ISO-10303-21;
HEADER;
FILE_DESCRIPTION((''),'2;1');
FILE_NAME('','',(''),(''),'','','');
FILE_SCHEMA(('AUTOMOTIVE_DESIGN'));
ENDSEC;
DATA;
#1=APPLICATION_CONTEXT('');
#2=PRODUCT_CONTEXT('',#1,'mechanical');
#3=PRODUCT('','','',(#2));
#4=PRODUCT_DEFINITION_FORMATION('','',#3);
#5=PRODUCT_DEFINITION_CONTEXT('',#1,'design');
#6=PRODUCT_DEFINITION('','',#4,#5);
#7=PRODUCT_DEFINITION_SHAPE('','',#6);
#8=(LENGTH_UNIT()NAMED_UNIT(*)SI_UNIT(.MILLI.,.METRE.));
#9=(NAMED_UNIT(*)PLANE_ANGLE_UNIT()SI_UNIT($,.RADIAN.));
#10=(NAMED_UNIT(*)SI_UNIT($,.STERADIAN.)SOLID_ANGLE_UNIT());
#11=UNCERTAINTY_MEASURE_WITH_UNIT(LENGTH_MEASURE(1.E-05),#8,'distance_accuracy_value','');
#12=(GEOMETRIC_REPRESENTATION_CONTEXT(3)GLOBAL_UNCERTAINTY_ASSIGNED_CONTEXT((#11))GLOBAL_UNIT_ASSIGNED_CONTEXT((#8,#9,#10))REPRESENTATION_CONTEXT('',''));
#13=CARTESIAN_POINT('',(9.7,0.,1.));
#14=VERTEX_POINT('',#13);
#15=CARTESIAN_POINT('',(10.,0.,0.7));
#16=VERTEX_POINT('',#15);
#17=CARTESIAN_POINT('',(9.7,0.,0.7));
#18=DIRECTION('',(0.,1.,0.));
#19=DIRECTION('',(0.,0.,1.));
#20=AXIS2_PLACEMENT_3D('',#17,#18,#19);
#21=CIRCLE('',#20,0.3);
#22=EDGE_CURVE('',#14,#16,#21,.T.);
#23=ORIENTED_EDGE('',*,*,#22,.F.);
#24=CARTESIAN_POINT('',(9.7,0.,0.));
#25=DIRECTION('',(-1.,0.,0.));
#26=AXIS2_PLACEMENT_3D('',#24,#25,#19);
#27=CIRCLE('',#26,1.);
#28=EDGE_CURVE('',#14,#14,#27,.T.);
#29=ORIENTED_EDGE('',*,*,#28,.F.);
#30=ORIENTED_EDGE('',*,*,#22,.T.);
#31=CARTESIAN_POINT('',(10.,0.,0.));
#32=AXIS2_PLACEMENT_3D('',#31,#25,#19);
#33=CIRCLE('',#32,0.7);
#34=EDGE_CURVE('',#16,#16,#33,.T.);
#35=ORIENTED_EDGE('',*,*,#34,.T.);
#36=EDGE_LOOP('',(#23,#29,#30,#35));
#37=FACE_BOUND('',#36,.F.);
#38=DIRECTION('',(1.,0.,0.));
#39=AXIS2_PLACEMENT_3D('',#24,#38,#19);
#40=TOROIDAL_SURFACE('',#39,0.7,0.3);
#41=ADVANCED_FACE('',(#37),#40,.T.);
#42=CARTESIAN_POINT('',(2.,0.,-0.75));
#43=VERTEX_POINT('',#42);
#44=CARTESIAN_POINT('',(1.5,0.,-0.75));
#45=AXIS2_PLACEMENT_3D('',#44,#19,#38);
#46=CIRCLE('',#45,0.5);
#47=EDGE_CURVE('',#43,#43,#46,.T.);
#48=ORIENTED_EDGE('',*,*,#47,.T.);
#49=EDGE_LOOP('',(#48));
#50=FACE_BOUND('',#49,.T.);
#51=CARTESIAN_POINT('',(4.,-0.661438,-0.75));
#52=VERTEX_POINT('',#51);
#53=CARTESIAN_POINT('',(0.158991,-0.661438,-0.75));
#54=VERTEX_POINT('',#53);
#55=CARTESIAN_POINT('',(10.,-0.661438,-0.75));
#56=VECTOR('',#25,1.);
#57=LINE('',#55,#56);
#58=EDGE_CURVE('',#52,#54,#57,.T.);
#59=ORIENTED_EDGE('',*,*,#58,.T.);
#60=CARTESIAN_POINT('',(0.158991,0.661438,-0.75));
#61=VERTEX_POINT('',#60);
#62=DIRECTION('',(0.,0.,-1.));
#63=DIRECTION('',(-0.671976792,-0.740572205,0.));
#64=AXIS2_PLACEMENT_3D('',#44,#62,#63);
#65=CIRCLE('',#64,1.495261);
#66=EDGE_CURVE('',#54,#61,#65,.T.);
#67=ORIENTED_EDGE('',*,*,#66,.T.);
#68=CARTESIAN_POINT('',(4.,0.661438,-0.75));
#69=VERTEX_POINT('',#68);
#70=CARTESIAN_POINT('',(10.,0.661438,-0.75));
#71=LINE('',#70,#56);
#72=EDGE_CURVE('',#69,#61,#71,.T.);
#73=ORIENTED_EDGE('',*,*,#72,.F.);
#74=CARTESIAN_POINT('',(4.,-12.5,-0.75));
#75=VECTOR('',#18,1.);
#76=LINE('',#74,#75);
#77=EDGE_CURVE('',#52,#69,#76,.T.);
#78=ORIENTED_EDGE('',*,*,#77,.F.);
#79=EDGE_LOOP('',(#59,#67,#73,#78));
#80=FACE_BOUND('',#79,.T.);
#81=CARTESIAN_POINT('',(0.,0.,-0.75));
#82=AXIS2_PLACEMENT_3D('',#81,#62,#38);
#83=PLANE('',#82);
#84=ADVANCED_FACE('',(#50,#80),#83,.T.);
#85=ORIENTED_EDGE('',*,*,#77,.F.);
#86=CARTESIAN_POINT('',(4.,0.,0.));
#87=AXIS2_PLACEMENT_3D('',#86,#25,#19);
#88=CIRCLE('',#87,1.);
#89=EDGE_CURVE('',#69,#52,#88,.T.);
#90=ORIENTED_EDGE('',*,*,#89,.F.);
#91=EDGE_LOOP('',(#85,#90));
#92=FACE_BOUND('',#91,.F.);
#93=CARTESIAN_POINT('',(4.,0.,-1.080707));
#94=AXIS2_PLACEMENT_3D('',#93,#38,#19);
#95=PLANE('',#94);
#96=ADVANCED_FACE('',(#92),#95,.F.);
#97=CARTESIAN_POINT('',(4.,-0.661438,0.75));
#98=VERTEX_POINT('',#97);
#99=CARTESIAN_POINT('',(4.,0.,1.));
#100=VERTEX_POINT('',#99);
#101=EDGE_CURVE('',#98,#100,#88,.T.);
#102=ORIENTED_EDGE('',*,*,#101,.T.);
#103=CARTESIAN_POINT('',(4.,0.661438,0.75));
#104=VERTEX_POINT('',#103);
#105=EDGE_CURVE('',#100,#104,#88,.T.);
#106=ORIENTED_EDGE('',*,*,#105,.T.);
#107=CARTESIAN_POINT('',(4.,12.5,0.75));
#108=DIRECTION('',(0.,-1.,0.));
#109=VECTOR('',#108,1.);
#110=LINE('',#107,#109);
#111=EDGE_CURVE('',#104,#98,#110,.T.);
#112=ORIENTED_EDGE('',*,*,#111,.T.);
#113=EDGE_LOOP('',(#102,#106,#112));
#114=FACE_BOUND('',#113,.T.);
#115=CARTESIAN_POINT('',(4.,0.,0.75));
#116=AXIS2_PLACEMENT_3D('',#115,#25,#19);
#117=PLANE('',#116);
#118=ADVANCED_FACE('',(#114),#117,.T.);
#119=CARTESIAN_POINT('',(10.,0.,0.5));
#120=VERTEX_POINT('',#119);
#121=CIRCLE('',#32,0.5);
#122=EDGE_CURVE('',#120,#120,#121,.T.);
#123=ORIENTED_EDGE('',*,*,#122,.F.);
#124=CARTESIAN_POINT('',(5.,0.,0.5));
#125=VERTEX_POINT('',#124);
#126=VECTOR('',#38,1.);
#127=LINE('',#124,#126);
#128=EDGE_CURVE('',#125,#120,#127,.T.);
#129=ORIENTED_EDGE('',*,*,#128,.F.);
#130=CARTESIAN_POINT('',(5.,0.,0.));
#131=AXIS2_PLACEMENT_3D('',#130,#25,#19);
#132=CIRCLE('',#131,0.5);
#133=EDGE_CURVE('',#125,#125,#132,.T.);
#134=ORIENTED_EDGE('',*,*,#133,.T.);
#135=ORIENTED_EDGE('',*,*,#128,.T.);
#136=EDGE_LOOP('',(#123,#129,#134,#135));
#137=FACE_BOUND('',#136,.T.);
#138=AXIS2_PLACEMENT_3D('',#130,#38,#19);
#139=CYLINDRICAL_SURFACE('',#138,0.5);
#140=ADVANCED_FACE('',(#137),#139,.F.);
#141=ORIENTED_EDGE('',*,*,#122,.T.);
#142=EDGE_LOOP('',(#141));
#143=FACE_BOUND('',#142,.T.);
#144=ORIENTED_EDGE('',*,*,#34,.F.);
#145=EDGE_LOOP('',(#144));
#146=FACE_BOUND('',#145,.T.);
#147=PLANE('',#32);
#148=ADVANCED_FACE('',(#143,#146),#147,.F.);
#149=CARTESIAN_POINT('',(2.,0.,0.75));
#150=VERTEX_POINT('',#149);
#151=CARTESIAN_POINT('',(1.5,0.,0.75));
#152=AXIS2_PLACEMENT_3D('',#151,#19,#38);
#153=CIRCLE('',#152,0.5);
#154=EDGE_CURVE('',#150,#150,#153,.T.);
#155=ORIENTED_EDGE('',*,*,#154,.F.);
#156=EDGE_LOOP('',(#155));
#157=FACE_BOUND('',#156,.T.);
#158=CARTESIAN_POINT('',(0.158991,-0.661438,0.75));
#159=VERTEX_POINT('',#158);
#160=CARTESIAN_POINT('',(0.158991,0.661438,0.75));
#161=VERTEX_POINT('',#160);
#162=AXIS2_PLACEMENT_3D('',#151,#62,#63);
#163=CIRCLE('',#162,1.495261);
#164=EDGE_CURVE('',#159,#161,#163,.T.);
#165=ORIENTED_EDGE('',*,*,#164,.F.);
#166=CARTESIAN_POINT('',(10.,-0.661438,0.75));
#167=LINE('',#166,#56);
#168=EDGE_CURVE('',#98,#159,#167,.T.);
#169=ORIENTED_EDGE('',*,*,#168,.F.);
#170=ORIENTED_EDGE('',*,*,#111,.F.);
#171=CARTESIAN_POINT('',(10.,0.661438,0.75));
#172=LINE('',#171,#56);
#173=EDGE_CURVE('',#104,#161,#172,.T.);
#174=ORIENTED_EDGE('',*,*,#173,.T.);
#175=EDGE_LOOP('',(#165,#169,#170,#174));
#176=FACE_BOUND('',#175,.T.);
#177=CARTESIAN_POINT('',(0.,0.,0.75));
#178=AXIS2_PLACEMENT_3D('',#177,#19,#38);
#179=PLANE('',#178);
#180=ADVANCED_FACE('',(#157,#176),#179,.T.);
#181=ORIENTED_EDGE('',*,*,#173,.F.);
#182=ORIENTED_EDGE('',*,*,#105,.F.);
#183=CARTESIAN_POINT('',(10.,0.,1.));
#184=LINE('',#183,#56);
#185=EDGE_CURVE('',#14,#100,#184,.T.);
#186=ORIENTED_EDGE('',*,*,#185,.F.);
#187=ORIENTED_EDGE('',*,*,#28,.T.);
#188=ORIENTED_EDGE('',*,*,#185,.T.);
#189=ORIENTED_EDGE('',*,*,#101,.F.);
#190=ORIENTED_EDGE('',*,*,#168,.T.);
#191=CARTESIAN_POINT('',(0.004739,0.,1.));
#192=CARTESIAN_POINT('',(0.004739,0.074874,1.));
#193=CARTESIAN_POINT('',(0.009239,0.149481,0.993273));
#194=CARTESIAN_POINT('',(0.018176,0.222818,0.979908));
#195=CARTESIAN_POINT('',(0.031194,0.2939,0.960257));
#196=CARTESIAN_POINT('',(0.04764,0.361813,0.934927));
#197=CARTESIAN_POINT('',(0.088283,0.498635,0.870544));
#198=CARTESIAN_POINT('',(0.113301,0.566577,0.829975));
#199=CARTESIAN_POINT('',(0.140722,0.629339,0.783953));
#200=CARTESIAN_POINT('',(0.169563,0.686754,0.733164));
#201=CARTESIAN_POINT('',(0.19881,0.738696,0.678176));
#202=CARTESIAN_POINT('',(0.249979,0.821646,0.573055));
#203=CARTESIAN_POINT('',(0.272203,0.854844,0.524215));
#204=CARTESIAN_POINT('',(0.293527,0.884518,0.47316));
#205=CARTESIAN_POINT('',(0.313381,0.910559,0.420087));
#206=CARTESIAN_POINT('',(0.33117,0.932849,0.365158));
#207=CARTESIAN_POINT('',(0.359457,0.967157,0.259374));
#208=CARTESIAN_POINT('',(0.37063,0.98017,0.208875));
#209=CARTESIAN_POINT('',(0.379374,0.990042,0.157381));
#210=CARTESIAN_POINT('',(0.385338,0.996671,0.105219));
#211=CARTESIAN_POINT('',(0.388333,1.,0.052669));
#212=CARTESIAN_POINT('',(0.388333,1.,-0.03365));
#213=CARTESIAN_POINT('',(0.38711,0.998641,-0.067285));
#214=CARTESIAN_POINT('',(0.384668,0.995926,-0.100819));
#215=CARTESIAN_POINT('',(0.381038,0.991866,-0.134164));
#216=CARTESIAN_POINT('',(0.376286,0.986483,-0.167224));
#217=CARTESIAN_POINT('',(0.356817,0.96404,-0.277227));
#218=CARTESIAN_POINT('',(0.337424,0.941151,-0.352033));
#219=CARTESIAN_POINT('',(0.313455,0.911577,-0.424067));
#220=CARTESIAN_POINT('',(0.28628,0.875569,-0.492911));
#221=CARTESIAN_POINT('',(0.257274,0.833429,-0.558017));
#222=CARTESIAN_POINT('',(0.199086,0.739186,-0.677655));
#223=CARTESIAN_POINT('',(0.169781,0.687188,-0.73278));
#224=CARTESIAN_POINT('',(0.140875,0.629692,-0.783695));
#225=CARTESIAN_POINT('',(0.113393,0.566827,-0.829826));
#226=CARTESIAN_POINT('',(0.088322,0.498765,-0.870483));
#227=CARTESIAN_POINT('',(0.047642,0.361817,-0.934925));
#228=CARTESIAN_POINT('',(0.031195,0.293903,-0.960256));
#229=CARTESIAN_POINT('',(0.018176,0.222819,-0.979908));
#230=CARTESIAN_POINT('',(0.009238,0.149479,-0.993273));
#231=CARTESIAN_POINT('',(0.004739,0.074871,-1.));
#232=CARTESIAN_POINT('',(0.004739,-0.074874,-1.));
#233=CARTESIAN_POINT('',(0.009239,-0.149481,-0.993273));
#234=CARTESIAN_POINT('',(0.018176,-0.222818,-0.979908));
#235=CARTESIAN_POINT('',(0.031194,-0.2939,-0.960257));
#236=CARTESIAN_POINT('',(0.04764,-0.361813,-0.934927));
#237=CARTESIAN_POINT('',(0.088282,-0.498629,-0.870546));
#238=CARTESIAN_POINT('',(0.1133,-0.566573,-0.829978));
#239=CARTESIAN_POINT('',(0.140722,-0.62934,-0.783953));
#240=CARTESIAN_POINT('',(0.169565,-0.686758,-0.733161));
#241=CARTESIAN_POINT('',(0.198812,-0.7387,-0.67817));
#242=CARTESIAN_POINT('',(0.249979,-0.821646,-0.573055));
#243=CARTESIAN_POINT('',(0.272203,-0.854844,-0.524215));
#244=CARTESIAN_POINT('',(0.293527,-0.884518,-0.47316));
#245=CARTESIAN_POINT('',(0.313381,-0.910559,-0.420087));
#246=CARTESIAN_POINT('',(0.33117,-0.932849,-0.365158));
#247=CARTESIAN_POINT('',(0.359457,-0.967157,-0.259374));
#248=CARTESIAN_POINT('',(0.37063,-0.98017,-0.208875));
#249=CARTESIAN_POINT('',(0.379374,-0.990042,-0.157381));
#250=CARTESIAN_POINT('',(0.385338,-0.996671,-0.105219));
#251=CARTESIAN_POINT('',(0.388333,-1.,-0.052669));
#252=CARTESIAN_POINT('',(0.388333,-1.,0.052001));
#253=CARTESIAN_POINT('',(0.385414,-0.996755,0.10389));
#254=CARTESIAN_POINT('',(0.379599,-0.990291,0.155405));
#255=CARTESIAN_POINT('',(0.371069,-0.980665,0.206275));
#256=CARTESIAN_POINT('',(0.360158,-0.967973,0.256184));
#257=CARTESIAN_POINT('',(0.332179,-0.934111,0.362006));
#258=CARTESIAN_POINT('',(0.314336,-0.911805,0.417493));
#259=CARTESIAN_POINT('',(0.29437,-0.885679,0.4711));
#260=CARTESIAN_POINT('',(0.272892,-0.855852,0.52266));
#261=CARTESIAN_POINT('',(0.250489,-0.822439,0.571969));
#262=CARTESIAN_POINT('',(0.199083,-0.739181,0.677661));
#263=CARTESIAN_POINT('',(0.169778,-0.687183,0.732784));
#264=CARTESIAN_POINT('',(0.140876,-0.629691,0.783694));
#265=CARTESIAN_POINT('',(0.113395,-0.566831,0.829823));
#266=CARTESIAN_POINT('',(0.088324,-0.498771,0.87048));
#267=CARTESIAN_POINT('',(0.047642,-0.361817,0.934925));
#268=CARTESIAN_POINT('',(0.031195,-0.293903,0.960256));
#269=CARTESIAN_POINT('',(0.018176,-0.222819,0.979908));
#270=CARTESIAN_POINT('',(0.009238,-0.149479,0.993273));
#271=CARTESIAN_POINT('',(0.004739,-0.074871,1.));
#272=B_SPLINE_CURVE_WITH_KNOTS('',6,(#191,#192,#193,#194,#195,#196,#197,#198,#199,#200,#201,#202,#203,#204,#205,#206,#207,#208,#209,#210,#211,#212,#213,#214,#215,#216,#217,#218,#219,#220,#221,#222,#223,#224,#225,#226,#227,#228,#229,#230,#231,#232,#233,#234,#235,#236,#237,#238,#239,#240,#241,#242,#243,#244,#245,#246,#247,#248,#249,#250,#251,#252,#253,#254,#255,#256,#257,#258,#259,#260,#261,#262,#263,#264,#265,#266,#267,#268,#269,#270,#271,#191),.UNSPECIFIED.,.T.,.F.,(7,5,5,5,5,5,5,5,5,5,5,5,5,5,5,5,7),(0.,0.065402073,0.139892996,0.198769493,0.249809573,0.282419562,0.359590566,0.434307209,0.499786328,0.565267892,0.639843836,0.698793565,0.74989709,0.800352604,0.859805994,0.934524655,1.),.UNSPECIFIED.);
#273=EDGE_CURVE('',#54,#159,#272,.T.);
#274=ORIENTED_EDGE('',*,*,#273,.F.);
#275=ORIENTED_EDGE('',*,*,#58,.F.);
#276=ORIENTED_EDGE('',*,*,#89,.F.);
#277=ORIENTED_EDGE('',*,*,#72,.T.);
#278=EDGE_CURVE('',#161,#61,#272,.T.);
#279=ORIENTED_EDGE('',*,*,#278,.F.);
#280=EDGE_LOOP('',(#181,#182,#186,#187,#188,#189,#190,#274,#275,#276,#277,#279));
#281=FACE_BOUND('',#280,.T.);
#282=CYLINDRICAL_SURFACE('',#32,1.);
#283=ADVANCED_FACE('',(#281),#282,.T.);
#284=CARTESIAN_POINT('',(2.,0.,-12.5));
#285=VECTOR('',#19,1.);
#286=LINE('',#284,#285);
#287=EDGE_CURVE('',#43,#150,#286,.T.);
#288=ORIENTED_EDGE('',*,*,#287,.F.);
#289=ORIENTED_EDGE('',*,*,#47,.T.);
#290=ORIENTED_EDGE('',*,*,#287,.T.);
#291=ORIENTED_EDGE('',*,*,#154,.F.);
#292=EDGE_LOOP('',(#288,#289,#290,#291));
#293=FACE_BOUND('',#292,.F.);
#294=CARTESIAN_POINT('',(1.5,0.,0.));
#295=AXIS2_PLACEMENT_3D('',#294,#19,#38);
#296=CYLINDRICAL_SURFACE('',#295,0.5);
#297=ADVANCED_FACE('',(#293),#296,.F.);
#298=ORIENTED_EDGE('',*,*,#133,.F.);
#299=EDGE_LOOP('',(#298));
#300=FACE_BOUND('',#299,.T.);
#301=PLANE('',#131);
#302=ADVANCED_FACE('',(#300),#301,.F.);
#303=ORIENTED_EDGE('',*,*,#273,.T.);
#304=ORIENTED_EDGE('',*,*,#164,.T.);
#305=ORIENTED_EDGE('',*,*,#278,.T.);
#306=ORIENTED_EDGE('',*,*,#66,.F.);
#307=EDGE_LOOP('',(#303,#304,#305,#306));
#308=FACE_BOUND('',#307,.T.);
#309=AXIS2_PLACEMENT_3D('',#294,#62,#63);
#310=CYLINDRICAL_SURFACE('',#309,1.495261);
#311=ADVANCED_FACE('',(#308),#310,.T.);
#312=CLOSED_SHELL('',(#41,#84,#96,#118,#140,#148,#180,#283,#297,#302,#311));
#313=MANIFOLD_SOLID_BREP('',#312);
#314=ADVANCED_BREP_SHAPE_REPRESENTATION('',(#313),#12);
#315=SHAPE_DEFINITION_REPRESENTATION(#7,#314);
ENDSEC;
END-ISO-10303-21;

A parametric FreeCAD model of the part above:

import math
import FreeCAD as App
import Part
import Sketcher
from FreeCAD import Vector


def edges_at(feature, points):
    """Names of the edges that pass closest to the given points."""
    edges = feature.Shape.Edges
    near = lambda p: min(range(len(edges)), key=lambda i: edges[i].distToShape(Part.Vertex(*p))[0])
    return sorted({f"Edge{near(p) + 1}" for p in points})


def add_polygon(sketch, points):
    """Adds a closed chain of lines whose ends are joined by coincident constraints."""
    first, n = sketch.GeometryCount, len(points)
    for a, b in zip(points, points[1:] + points[:1]):
        sketch.addGeometry(Part.LineSegment(App.Vector(*a, 0), App.Vector(*b, 0)), False)
    for i in range(n):
        sketch.addConstraint(Sketcher.Constraint("Coincident", first + i, 2, first + (i + 1) % n, 1))

doc = App.newDocument("Part")
body = doc.addObject("PartDesign::Body", "Body")

sketch1 = doc.addObject("Sketcher::SketchObject", "Sketch")
body.addObject(sketch1)
sketch1.AttachmentSupport = (doc.XZ_Plane, [""])
sketch1.MapMode = "FlatFace"
add_polygon(sketch1, [(0, 1), (0, 0), (5, 0), (5, 0.5), (10, 0.5), (10, 1)])
sketch1.addConstraint(Sketcher.Constraint("Vertical", 0))
sketch1.addConstraint(Sketcher.Constraint("Horizontal", 1))
sketch1.addConstraint(Sketcher.Constraint("Vertical", 2))
sketch1.addConstraint(Sketcher.Constraint("Horizontal", 3))
sketch1.addConstraint(Sketcher.Constraint("Vertical", 4))
sketch1.addConstraint(Sketcher.Constraint("Horizontal", 5))
sketch1.addConstraint(Sketcher.Constraint("Coincident", 0, 2, -1, 1))
sketch1.addConstraint(Sketcher.Constraint("Equal", 1, 3))
sketch1.addConstraint(Sketcher.Constraint("Equal", 2, 4))
sketch1.addConstraint(Sketcher.Constraint("DistanceX", 1, 1, 1, 2, 5.0))
sketch1.addConstraint(Sketcher.Constraint("DistanceY", 0, 2, 0, 1, 1.0))
revolution = doc.addObject("PartDesign::Revolution", "Revolution")
body.addObject(revolution)
revolution.Profile = sketch1
revolution.ReferenceAxis = (sketch1, ["H_Axis"])
revolution.Angle = 360

sketch2 = doc.addObject("Sketcher::SketchObject", "Sketch001")
body.addObject(sketch2)
sketch2.AttachmentSupport = (doc.XZ_Plane, [""])
sketch2.MapMode = "FlatFace"
add_polygon(sketch2, [(0, 1.08), (0, 0.75), (4, 0.75), (4, 1.08)])
add_polygon(sketch2, [(0, -0.75), (0, -1.08), (4, -1.08), (4, -0.75)])
sketch2.addConstraint(Sketcher.Constraint("Vertical", 0))
sketch2.addConstraint(Sketcher.Constraint("Horizontal", 1))
sketch2.addConstraint(Sketcher.Constraint("Vertical", 2))
sketch2.addConstraint(Sketcher.Constraint("Horizontal", 3))
sketch2.addConstraint(Sketcher.Constraint("Vertical", 4))
sketch2.addConstraint(Sketcher.Constraint("Horizontal", 5))
sketch2.addConstraint(Sketcher.Constraint("Vertical", 6))
sketch2.addConstraint(Sketcher.Constraint("Horizontal", 7))
sketch2.addConstraint(Sketcher.Constraint("Symmetric", 3, 2, 4, 2, -1, 1))
sketch2.addConstraint(Sketcher.Constraint("Symmetric", 1, 2, 6, 2, -1))
sketch2.addConstraint(Sketcher.Constraint("PointOnObject", 0, 2, -2))
sketch2.addConstraint(Sketcher.Constraint("DistanceX", 1, 1, 1, 2, 4.0))
sketch2.addConstraint(Sketcher.Constraint("DistanceY", 6, 2, 1, 2, 1.5))
sketch2.addConstraint(Sketcher.Constraint("DistanceY", 0, 2, 0, 1, 0.330707))
pocket1 = doc.addObject("PartDesign::Pocket", "Pocket")
body.addObject(pocket1)
pocket1.Profile = sketch2
pocket1.Length = 25
pocket1.Midplane = True

sketch3 = doc.addObject("Sketcher::SketchObject", "Sketch002")
body.addObject(sketch3)
sketch3.AttachmentSupport = (doc.XY_Plane, [""])
sketch3.MapMode = "FlatFace"
sketch3.addGeometry(Part.LineSegment(Vector(-0.34, -1.11, 0), Vector(0.5, -1.11, 0)), False)
sketch3.addGeometry(Part.ArcOfCircle(Part.Circle(Vector(1.5, 0, 0), Vector(0, 0, 1), 1.5), math.radians(-172), math.radians(-132)), False)
sketch3.addGeometry(Part.ArcOfCircle(Part.Circle(Vector(1.5, 0, 0), Vector(0, 0, 1), 1.5), math.radians(172.4), math.radians(187.6)), False)
sketch3.addGeometry(Part.ArcOfCircle(Part.Circle(Vector(1.5, 0, 0), Vector(0, 0, 1), 1.5), math.radians(132), math.radians(172)), False)
sketch3.addGeometry(Part.LineSegment(Vector(0.5, 1.11, 0), Vector(-0.34, 1.11, 0)), False)
sketch3.addGeometry(Part.LineSegment(Vector(-0.34, 1.11, 0), Vector(-0.34, -1.11, 0)), False)
sketch3.addGeometry(Part.Circle(Vector(1.5, 0, 0), Vector(0, 0, 1), 0.5), False)
sketch3.addConstraint(Sketcher.Constraint("Coincident", 0, 2, 1, 2))
sketch3.addConstraint(Sketcher.Constraint("Tangent", 1, 1, 2, 2))
sketch3.addConstraint(Sketcher.Constraint("Tangent", 2, 1, 3, 2))
sketch3.addConstraint(Sketcher.Constraint("Coincident", 3, 1, 4, 1))
sketch3.addConstraint(Sketcher.Constraint("Coincident", 4, 2, 5, 1))
sketch3.addConstraint(Sketcher.Constraint("Coincident", 5, 2, 0, 1))
sketch3.addConstraint(Sketcher.Constraint("Horizontal", 0))
sketch3.addConstraint(Sketcher.Constraint("Horizontal", 4))
sketch3.addConstraint(Sketcher.Constraint("Vertical", 5))
sketch3.addConstraint(Sketcher.Constraint("Coincident", 3, 3, 1, 3))
sketch3.addConstraint(Sketcher.Constraint("Coincident", 6, 3, 1, 3))
sketch3.addConstraint(Sketcher.Constraint("Symmetric", 1, 1, 2, 1, -1))
sketch3.addConstraint(Sketcher.Constraint("Vertical", 0, 2, 3, 1))
sketch3.addConstraint(Sketcher.Constraint("Diameter", 6, 1.0))
sketch3.addConstraint(Sketcher.Constraint("DistanceX", -1, 1, 1, 3, 1.5))
sketch3.addConstraint(Sketcher.Constraint("Radius", 1, 1.495261))
sketch3.addConstraint(Sketcher.Constraint("DistanceX", 0, 1, 0, 2, 0.836587))
sketch3.addConstraint(Sketcher.Constraint("DistanceY", 5, 2, 5, 1, 2.214697))
sketch3.addConstraint(Sketcher.Constraint("DistanceY", 0, 2, 2, 1, 1.305111))
pocket2 = doc.addObject("PartDesign::Pocket", "Pocket001")
body.addObject(pocket2)
pocket2.Profile = sketch3
pocket2.Length = 25
pocket2.Midplane = True
doc.recompute()

fillet = doc.addObject("PartDesign::Fillet", "Fillet")
body.addObject(fillet)
fillet.Base = (pocket2, edges_at(pocket2, [(10, 0, -1)]))
fillet.Radius = 0.3

doc.recompute()
